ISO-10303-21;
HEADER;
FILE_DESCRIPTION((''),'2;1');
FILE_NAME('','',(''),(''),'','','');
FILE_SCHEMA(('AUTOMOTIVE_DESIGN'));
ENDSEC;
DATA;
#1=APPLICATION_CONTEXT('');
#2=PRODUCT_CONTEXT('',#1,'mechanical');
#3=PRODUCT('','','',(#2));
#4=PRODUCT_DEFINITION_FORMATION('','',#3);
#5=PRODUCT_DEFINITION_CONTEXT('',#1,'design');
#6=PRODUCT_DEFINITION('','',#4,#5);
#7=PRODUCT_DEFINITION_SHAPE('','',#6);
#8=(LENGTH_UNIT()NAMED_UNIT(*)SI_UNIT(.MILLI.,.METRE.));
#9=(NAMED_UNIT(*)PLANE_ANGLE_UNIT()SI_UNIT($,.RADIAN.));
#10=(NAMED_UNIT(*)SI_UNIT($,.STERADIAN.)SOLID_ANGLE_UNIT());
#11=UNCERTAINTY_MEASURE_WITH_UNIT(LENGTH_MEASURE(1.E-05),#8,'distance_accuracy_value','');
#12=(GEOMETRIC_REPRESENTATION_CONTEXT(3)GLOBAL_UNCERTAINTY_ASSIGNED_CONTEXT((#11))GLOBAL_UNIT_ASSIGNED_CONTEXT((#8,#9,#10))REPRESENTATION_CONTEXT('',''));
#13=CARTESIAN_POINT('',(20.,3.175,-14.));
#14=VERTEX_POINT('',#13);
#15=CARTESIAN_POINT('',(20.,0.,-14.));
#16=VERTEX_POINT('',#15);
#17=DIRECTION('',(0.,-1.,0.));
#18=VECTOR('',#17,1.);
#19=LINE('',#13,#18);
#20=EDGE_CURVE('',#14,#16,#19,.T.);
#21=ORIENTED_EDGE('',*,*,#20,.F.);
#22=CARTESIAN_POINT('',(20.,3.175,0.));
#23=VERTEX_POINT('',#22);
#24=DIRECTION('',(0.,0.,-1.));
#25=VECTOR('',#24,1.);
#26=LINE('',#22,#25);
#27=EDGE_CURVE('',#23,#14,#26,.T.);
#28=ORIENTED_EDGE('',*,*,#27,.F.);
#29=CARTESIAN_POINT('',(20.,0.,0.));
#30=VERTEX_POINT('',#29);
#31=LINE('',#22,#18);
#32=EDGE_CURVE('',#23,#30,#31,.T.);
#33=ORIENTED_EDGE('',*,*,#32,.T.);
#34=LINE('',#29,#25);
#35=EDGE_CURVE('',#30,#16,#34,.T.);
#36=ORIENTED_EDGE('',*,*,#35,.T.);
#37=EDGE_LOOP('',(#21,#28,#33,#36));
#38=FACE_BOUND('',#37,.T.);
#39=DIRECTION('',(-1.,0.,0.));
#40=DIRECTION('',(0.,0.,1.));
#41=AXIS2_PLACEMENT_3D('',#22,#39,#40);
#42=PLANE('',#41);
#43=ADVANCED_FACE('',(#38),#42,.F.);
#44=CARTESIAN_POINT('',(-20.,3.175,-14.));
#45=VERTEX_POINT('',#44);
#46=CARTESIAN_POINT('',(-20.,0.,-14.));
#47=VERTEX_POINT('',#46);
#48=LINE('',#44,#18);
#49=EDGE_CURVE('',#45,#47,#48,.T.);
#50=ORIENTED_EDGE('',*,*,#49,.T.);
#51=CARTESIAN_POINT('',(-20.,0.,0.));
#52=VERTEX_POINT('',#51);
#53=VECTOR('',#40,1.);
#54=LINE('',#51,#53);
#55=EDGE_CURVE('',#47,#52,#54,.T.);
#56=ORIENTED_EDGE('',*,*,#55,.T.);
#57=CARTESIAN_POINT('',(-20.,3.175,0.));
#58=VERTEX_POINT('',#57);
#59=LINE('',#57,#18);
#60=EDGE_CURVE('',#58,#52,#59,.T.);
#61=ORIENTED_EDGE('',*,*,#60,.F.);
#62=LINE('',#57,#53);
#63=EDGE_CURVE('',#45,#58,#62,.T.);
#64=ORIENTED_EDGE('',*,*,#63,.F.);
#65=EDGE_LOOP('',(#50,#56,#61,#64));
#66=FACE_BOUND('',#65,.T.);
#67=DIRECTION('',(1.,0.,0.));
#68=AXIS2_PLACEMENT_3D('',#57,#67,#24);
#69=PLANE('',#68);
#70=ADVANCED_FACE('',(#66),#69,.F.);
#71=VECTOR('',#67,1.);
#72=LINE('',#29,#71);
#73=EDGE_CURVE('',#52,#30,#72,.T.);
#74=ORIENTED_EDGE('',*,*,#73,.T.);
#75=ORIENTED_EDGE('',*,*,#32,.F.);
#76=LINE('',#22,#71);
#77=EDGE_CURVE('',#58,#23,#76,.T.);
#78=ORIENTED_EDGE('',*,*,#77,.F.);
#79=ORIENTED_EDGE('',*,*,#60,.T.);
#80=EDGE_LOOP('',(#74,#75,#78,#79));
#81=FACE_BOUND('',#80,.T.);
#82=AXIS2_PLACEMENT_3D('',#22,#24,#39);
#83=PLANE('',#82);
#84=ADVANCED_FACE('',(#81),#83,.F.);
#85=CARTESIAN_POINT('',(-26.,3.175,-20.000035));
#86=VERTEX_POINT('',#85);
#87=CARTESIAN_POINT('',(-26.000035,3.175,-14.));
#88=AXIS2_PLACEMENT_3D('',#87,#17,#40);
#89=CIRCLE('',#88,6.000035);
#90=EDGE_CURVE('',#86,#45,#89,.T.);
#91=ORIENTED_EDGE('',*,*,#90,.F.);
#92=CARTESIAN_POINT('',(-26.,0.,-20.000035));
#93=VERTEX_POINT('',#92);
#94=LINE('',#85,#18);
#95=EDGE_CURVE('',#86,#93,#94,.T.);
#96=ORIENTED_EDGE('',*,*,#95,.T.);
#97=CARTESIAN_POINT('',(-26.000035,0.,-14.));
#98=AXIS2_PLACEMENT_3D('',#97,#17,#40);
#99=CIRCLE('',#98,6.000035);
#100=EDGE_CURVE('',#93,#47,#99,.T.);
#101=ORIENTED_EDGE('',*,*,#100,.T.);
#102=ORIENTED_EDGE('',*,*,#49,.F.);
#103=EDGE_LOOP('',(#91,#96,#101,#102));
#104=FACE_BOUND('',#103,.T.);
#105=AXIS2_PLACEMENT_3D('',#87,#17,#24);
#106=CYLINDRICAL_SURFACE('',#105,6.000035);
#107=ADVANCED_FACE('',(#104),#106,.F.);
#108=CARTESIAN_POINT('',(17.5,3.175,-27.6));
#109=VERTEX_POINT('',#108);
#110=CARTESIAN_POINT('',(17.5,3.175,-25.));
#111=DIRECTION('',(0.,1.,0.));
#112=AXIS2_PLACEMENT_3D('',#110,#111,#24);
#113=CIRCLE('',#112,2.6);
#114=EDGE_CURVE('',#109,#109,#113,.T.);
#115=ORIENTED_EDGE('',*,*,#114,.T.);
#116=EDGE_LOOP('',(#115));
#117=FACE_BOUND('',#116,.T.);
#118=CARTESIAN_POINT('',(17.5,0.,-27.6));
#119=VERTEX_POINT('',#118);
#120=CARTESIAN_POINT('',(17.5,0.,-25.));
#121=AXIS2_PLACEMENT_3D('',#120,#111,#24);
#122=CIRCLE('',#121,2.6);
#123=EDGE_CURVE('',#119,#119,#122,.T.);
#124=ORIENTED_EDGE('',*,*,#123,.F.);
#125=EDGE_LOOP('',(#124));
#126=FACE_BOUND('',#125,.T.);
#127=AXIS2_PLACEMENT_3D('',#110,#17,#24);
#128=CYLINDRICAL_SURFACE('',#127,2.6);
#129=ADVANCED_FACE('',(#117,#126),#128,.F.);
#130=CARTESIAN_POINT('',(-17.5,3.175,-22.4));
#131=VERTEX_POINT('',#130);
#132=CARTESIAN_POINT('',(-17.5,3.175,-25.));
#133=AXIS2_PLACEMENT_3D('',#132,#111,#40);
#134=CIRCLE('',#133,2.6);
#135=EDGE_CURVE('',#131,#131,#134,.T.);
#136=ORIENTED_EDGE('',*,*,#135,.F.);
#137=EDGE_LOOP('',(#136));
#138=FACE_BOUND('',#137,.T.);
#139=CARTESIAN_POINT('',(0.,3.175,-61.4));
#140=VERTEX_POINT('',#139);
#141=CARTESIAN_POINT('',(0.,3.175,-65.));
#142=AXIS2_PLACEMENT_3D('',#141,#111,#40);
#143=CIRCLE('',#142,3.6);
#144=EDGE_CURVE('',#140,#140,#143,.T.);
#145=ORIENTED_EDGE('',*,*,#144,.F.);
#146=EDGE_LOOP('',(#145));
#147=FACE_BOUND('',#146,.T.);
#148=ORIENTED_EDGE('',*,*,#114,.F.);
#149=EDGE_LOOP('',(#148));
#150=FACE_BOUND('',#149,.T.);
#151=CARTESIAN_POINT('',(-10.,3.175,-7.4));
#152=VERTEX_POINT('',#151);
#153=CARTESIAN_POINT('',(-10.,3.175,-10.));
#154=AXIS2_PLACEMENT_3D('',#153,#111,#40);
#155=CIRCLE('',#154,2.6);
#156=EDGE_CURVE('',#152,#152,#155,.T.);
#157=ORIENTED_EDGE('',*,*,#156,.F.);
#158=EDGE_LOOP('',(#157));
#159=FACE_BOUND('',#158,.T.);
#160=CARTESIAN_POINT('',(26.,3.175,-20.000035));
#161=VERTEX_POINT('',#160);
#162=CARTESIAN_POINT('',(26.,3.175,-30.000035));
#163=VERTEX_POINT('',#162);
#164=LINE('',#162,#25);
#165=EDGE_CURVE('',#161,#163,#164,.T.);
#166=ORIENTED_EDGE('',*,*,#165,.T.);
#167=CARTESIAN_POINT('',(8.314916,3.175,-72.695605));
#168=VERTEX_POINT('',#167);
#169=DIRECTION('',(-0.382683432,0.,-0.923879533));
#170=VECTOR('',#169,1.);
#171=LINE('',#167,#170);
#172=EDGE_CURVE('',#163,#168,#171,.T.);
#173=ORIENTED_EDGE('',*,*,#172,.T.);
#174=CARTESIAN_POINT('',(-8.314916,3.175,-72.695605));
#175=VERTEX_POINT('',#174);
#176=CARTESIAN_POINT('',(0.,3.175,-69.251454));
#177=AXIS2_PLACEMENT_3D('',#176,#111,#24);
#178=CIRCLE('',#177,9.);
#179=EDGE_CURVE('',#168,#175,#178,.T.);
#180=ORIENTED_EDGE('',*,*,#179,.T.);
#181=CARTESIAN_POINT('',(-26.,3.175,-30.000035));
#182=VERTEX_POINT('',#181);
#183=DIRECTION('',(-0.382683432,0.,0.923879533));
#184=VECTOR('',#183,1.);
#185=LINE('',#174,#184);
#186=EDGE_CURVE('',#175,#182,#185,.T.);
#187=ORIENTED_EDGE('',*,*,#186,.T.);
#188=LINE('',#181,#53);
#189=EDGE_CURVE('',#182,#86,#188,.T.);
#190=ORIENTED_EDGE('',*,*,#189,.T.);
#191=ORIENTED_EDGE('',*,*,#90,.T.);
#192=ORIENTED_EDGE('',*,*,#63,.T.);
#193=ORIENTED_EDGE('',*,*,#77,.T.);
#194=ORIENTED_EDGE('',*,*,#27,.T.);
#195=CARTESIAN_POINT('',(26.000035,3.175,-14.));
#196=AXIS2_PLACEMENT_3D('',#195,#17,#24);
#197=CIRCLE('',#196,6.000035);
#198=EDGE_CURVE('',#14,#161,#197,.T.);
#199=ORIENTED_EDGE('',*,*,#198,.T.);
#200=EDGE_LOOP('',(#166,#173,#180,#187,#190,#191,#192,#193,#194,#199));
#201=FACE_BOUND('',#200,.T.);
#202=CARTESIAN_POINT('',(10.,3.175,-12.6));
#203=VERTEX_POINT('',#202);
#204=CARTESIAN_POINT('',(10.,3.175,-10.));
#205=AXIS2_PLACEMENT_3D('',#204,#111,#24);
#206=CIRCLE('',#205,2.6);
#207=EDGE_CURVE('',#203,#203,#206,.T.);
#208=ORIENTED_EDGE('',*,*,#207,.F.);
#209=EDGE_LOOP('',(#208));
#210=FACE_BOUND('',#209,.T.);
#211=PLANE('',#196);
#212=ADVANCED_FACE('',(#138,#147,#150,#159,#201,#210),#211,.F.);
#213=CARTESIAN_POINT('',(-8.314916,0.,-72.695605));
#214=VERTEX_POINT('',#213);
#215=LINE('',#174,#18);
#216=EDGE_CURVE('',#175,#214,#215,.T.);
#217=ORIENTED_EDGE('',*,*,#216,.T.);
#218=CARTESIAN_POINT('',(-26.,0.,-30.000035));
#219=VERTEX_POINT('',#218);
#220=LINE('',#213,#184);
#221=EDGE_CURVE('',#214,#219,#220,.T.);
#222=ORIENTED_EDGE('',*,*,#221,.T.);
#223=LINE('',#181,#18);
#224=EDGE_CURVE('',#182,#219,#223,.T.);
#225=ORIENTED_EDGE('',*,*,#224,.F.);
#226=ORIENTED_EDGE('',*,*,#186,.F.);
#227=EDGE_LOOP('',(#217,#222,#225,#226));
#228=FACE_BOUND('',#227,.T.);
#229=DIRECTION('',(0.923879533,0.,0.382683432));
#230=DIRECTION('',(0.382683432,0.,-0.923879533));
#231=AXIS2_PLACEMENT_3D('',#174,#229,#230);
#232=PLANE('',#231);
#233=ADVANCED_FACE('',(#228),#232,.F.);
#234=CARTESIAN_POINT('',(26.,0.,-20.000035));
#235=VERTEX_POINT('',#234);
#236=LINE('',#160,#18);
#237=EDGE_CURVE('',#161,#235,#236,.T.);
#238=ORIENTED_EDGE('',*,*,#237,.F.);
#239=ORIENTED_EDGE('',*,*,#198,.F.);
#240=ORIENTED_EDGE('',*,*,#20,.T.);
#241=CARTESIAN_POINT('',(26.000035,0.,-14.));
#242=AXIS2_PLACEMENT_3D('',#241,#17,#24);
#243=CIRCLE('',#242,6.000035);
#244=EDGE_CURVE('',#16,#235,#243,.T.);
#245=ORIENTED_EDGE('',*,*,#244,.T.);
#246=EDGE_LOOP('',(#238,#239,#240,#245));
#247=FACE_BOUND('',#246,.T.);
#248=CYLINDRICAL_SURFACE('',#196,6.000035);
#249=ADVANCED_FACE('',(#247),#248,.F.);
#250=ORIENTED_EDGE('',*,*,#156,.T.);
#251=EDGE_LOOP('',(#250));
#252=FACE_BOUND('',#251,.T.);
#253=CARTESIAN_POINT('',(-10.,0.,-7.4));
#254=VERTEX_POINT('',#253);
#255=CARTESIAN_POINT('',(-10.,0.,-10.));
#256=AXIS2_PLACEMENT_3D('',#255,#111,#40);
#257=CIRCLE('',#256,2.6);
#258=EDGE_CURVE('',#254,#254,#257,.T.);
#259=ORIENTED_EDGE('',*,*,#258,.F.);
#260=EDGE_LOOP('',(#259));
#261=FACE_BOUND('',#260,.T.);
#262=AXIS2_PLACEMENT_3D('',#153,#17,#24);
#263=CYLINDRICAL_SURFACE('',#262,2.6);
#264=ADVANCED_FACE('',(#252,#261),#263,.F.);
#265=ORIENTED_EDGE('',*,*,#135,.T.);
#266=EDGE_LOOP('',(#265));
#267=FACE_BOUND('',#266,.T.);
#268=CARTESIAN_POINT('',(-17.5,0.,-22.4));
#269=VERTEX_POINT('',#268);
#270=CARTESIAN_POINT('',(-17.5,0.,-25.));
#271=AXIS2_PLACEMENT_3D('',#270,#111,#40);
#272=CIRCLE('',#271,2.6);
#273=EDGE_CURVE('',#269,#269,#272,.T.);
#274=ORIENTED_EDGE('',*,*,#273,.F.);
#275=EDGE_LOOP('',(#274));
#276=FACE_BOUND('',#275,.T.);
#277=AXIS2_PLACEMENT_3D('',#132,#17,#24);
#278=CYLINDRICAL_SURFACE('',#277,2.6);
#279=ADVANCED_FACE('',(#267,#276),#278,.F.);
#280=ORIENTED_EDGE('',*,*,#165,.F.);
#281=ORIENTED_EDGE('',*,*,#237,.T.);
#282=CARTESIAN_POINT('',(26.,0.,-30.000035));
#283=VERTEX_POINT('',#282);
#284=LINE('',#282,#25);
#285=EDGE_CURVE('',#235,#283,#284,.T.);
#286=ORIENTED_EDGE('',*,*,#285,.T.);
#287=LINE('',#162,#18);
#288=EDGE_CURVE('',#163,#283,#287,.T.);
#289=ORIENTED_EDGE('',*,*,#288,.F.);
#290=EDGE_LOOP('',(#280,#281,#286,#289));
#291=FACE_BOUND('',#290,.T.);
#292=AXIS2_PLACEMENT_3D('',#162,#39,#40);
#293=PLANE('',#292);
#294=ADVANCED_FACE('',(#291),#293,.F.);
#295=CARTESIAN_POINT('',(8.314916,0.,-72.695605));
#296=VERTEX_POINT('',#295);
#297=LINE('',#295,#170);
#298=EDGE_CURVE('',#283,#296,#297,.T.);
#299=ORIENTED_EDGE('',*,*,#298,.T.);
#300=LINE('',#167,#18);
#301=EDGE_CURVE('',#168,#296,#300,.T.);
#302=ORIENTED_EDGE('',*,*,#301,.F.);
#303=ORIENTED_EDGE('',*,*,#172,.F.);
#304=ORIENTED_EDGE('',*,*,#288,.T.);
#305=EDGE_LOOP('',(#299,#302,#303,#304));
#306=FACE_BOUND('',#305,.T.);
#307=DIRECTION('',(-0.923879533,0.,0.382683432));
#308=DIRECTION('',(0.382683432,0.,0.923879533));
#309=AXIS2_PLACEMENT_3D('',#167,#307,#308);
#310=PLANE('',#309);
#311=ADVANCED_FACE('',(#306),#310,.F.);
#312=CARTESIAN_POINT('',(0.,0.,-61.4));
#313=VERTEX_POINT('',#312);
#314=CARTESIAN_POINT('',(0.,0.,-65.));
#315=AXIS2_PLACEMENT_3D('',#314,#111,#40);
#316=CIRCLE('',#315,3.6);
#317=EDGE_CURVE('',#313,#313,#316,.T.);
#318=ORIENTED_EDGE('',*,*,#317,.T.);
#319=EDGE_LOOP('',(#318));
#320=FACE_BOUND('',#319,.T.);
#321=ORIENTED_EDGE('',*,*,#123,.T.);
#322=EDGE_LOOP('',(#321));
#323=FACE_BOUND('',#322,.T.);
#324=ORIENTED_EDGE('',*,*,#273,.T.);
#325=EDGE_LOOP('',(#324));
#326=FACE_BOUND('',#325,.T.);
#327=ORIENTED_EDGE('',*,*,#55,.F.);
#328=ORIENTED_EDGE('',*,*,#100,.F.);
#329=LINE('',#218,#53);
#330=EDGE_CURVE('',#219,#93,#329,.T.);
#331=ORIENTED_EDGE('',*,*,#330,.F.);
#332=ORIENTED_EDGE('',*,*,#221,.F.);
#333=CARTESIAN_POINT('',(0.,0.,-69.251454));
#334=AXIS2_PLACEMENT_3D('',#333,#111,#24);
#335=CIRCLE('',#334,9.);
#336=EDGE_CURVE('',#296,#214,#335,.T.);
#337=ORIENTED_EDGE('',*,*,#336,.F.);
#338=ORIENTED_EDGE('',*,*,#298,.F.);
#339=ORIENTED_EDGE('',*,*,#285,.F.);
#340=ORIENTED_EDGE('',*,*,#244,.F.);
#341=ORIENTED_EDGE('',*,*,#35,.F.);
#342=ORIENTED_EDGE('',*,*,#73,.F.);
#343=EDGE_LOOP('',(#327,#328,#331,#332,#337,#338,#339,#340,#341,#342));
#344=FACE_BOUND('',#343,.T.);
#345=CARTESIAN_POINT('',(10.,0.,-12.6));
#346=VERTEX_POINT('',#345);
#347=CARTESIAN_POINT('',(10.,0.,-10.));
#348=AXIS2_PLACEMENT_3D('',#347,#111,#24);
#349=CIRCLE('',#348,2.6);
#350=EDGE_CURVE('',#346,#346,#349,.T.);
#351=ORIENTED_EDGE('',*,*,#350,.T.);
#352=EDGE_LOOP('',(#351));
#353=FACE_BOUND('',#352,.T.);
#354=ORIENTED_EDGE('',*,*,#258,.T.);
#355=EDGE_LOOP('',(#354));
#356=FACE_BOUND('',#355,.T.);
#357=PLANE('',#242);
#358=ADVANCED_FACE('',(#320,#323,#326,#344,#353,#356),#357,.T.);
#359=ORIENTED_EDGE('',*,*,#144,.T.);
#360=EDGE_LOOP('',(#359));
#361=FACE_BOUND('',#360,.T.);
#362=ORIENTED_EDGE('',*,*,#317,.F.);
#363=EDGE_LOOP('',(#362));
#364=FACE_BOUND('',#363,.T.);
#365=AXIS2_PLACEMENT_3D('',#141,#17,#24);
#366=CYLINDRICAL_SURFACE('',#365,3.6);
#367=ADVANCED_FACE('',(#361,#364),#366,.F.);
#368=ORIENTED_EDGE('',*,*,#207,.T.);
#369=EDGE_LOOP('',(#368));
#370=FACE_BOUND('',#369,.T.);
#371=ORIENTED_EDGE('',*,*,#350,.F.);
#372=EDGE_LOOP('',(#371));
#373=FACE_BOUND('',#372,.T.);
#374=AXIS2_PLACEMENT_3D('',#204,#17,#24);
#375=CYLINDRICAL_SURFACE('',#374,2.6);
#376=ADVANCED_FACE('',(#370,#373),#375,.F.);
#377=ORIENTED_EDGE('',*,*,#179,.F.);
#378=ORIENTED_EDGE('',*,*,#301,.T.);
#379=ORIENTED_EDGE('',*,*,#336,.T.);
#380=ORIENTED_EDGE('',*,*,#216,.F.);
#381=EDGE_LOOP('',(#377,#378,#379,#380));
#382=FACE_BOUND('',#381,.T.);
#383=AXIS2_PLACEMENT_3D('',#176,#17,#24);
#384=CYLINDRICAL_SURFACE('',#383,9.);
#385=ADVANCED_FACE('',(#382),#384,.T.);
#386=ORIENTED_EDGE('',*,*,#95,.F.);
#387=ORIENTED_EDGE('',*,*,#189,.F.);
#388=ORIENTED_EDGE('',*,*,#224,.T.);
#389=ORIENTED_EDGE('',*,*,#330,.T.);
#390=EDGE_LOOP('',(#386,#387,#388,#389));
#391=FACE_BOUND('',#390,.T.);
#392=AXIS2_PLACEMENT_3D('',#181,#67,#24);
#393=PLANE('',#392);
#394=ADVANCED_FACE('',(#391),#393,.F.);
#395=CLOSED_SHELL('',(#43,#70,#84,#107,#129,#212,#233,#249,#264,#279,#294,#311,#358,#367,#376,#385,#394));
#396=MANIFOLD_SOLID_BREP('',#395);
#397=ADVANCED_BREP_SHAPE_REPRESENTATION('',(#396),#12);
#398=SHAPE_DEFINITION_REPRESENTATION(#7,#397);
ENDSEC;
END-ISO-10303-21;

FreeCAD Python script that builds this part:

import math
import FreeCAD as App
import Part
import Sketcher

V = App.Vector
Q = App.Units.Quantity

doc = App.newDocument("Part")
params = doc.addObject("Spreadsheet::Sheet", "Params")
for row, (alias, value) in enumerate([
    ("sketch1_radius", "9 mm"),
    ("sketch1_diameter", "5.2 mm"),
    ("sketch1_diameter2", "7.2 mm"),
    ("sketch1_width", "40 mm"),
    ("sketch1_height", "10 mm"),
    ("pad1_length", "3.175 mm"),
], start=1):
    params.set(f"A{row}", alias)
    params.set(f"B{row}", "=" + value)
    params.setAlias(f"B{row}", alias)

body = doc.addObject("PartDesign::Body", "Body")

# Sketch on XZ plane
sketch1 = body.newObject("Sketcher::SketchObject", "Sketch")
sketch1.AttachmentSupport = (doc.getObject("XZ_Plane"), [""])
sketch1.MapMode = "FlatFace"
sketch1.addGeometry([
    Part.LineSegment(V(26, -30, 0), V(8.3, -72.7, 0)),  # 0
    Part.ArcOfCircle(Part.Circle(V(0, -69.3, 0), V(0, 0, 1), 9), math.radians(-158), math.radians(-22)),  # 1
    Part.LineSegment(V(-8.3, -72.7, 0), V(-26, -30, 0)),  # 2
    Part.LineSegment(V(-26, -30, 0), V(-26, -20, 0)),  # 3
    Part.ArcOfCircle(Part.Circle(V(-26, -14, 0), V(0, 0, 1), 6), math.radians(-90), math.radians(0)),  # 4
    Part.LineSegment(V(-20, -14, 0), V(-20, 0, 0)),  # 5
    Part.LineSegment(V(-20, 0, 0), V(20, 0, 0)),  # 6
    Part.LineSegment(V(20, 0, 0), V(20, -14, 0)),  # 7
    Part.ArcOfCircle(Part.Circle(V(26, -14, 0), V(0, 0, 1), 6), math.radians(180), math.radians(270)),  # 8
    Part.LineSegment(V(26, -20, 0), V(26, -30, 0)),  # 9
    Part.Circle(V(10, -10, 0), V(0, 0, 1), 2.6),  # 10
    Part.Circle(V(17.5, -25, 0), V(0, 0, 1), 2.6),  # 11
    Part.Circle(V(-10, -10, 0), V(0, 0, 1), 2.6),  # 12
    Part.Circle(V(-17.5, -25, 0), V(0, 0, 1), 2.6),  # 13
    Part.Circle(V(0, -65, 0), V(0, 0, 1), 3.6),  # 14
], False)
sketch1.addConstraint([
    Sketcher.Constraint("Tangent", 0, 2, 1, 2),
    Sketcher.Constraint("Tangent", 1, 1, 2, 1),
    Sketcher.Constraint("Coincident", 2, 2, 3, 1),
    Sketcher.Constraint("Coincident", 3, 2, 4, 1),
    Sketcher.Constraint("Tangent", 4, 2, 5, 1),
    Sketcher.Constraint("Coincident", 5, 2, 6, 1),
    Sketcher.Constraint("Coincident", 6, 2, 7, 1),
    Sketcher.Constraint("Tangent", 7, 2, 8, 1),
    Sketcher.Constraint("Coincident", 8, 2, 9, 1),
    Sketcher.Constraint("Coincident", 9, 2, 0, 1),
    Sketcher.Constraint("Vertical", 3),
    Sketcher.Constraint("Vertical", 5),
    Sketcher.Constraint("Horizontal", 6),
    Sketcher.Constraint("Vertical", 7),
    Sketcher.Constraint("Vertical", 9),
    Sketcher.Constraint("Equal", 4, 8),
    Sketcher.Constraint("Equal", 10, 11),
    Sketcher.Constraint("Equal", 11, 12),
    Sketcher.Constraint("Equal", 12, 13),
    Sketcher.Constraint("Symmetric", 5, 2, 6, 2, -1, 1),
    Sketcher.Constraint("Symmetric", 10, 3, 12, 3, -2),
    Sketcher.Constraint("Symmetric", 11, 3, 13, 3, -2),
    Sketcher.Constraint("Symmetric", 0, 2, 1, 1, -2),
    Sketcher.Constraint("Symmetric", 3, 2, 8, 2, -2),
    Sketcher.Constraint("PointOnObject", 14, 3, -2),
    Sketcher.Constraint("Radius", 1, Q("9 mm")),
    Sketcher.Constraint("Diameter", 10, Q("5.2 mm")),
    Sketcher.Constraint("Diameter", 14, Q("7.2 mm")),
    Sketcher.Constraint("DistanceX", 6, 1, 6, 2, Q("40 mm")),
    Sketcher.Constraint("DistanceY", 3, 1, 3, 2, Q("10 mm")),
    Sketcher.Constraint("DistanceY", 5, 1, 5, 2, Q("14 mm")),
    Sketcher.Constraint("DistanceX", -1, 1, 10, 3, Q("10 mm")),
    Sketcher.Constraint("DistanceY", 10, 3, -1, 1, Q("10 mm")),
    Sketcher.Constraint("DistanceY", 11, 3, -1, 1, Q("25 mm")),
    Sketcher.Constraint("DistanceY", 14, 3, -1, 1, Q("65 mm")),
    Sketcher.Constraint("DistanceX", 2, 2, -1, 1, Q("26 mm")),
    Sketcher.Constraint("Angle", 0, Q("-112.5 deg")),
    Sketcher.Constraint("DistanceX", 13, 3, 11, 3, Q("35 mm")),
    Sketcher.Constraint("Radius", 4, Q("6.000035 mm")),
])
sketch1.setExpression("Constraints[25]", "Params.sketch1_radius")
sketch1.setExpression("Constraints[26]", "Params.sketch1_diameter")
sketch1.setExpression("Constraints[27]", "Params.sketch1_diameter2")
sketch1.setExpression("Constraints[28]", "Params.sketch1_width")
sketch1.setExpression("Constraints[29]", "Params.sketch1_height")
pad1 = body.newObject("PartDesign::Pad", "Pad")
pad1.Profile = sketch1
pad1.setExpression("Length", "Params.pad1_length")
pad1.Reversed = True

doc.recompute()
